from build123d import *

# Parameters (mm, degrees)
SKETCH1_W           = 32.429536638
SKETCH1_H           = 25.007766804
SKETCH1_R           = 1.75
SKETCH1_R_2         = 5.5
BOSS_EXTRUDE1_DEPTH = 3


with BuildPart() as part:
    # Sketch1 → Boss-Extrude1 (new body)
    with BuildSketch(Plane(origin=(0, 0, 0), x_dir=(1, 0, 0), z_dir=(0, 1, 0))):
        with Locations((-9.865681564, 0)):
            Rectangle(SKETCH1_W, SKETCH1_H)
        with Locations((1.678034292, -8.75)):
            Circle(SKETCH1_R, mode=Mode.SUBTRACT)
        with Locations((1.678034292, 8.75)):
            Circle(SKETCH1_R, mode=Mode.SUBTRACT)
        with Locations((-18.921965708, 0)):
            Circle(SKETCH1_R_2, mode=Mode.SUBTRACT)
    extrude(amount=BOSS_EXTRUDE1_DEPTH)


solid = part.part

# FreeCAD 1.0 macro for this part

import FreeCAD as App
import Part
import Sketcher

V = App.Vector
Q = App.Units.Quantity


def add_polygon(sketch, points):
    """Adds a closed chain of lines whose ends are joined by coincident constraints."""
    first, n = sketch.GeometryCount, len(points)
    for a, b in zip(points, points[1:] + points[:1]):
        sketch.addGeometry(Part.LineSegment(App.Vector(*a, 0), App.Vector(*b, 0)), False)
    for i in range(n):
        sketch.addConstraint(Sketcher.Constraint("Coincident", first + i, 2, first + (i + 1) % n, 1))

doc = App.newDocument("Part")
body = doc.addObject("PartDesign::Body", "Body")

# Sketch on XZ plane
sketch1 = doc.addObject("Sketcher::SketchObject", "Sketch")
body.addObject(sketch1)
sketch1.AttachmentSupport = (doc.XZ_Plane, [""])
sketch1.MapMode = "FlatFace"
add_polygon(sketch1, [(-26.08045, -12.503883), (-26.08045, 12.503883), (6.349087, 12.503883), (6.349087, -12.503883)])  # lines 0-3
sketch1.addGeometry(Part.Circle(V(1.678034, 8.75, 0), V(0, 0, 1), 1.75), False)  # 4
sketch1.addGeometry(Part.Circle(V(-18.921966, 0, 0), V(0, 0, 1), 5.5), False)  # 5
sketch1.addGeometry(Part.Circle(V(1.678034, -8.75, 0), V(0, 0, 1), 1.75), False)  # 6
sketch1.addConstraint(Sketcher.Constraint("Vertical", 0))
sketch1.addConstraint(Sketcher.Constraint("Horizontal", 1))
sketch1.addConstraint(Sketcher.Constraint("Vertical", 2))
sketch1.addConstraint(Sketcher.Constraint("Horizontal", 3))
sketch1.addConstraint(Sketcher.Constraint("Equal", 4, 6))
sketch1.addConstraint(Sketcher.Constraint("Symmetric", 4, 3, 6, 3, -1))
sketch1.addConstraint(Sketcher.Constraint("PointOnObject", 5, 3, -1))
sketch1.addConstraint(Sketcher.Constraint("Diameter", 5, Q("11 mm")))
sketch1.addConstraint(Sketcher.Constraint("Diameter", 4, Q("3.5 mm")))
sketch1.addConstraint(Sketcher.Constraint("DistanceX", 5, 3, 4, 3, Q("20.6 mm")))
sketch1.addConstraint(Sketcher.Constraint("DistanceY", 6, 3, 4, 3, Q("17.5 mm")))
sketch1.addConstraint(Sketcher.Constraint("DistanceX", 1, 1, 1, 2, Q("32.429537 mm")))
sketch1.addConstraint(Sketcher.Constraint("DistanceY", 0, 1, 0, 2, Q("25.007767 mm")))
sketch1.addConstraint(Sketcher.Constraint("DistanceX", 0, 2, -1, 1, Q("26.08045 mm")))
sketch1.addConstraint(Sketcher.Constraint("DistanceX", -1, 1, 4, 3, Q("1.678034 mm")))
sketch1.addConstraint(Sketcher.Constraint("DistanceY", -1, 1, 0, 2, Q("12.503883 mm")))
pad1 = doc.addObject("PartDesign::Pad", "Pad")
body.addObject(pad1)
pad1.Profile = sketch1
pad1.Length = 3
pad1.Reversed = True

doc.recompute()
